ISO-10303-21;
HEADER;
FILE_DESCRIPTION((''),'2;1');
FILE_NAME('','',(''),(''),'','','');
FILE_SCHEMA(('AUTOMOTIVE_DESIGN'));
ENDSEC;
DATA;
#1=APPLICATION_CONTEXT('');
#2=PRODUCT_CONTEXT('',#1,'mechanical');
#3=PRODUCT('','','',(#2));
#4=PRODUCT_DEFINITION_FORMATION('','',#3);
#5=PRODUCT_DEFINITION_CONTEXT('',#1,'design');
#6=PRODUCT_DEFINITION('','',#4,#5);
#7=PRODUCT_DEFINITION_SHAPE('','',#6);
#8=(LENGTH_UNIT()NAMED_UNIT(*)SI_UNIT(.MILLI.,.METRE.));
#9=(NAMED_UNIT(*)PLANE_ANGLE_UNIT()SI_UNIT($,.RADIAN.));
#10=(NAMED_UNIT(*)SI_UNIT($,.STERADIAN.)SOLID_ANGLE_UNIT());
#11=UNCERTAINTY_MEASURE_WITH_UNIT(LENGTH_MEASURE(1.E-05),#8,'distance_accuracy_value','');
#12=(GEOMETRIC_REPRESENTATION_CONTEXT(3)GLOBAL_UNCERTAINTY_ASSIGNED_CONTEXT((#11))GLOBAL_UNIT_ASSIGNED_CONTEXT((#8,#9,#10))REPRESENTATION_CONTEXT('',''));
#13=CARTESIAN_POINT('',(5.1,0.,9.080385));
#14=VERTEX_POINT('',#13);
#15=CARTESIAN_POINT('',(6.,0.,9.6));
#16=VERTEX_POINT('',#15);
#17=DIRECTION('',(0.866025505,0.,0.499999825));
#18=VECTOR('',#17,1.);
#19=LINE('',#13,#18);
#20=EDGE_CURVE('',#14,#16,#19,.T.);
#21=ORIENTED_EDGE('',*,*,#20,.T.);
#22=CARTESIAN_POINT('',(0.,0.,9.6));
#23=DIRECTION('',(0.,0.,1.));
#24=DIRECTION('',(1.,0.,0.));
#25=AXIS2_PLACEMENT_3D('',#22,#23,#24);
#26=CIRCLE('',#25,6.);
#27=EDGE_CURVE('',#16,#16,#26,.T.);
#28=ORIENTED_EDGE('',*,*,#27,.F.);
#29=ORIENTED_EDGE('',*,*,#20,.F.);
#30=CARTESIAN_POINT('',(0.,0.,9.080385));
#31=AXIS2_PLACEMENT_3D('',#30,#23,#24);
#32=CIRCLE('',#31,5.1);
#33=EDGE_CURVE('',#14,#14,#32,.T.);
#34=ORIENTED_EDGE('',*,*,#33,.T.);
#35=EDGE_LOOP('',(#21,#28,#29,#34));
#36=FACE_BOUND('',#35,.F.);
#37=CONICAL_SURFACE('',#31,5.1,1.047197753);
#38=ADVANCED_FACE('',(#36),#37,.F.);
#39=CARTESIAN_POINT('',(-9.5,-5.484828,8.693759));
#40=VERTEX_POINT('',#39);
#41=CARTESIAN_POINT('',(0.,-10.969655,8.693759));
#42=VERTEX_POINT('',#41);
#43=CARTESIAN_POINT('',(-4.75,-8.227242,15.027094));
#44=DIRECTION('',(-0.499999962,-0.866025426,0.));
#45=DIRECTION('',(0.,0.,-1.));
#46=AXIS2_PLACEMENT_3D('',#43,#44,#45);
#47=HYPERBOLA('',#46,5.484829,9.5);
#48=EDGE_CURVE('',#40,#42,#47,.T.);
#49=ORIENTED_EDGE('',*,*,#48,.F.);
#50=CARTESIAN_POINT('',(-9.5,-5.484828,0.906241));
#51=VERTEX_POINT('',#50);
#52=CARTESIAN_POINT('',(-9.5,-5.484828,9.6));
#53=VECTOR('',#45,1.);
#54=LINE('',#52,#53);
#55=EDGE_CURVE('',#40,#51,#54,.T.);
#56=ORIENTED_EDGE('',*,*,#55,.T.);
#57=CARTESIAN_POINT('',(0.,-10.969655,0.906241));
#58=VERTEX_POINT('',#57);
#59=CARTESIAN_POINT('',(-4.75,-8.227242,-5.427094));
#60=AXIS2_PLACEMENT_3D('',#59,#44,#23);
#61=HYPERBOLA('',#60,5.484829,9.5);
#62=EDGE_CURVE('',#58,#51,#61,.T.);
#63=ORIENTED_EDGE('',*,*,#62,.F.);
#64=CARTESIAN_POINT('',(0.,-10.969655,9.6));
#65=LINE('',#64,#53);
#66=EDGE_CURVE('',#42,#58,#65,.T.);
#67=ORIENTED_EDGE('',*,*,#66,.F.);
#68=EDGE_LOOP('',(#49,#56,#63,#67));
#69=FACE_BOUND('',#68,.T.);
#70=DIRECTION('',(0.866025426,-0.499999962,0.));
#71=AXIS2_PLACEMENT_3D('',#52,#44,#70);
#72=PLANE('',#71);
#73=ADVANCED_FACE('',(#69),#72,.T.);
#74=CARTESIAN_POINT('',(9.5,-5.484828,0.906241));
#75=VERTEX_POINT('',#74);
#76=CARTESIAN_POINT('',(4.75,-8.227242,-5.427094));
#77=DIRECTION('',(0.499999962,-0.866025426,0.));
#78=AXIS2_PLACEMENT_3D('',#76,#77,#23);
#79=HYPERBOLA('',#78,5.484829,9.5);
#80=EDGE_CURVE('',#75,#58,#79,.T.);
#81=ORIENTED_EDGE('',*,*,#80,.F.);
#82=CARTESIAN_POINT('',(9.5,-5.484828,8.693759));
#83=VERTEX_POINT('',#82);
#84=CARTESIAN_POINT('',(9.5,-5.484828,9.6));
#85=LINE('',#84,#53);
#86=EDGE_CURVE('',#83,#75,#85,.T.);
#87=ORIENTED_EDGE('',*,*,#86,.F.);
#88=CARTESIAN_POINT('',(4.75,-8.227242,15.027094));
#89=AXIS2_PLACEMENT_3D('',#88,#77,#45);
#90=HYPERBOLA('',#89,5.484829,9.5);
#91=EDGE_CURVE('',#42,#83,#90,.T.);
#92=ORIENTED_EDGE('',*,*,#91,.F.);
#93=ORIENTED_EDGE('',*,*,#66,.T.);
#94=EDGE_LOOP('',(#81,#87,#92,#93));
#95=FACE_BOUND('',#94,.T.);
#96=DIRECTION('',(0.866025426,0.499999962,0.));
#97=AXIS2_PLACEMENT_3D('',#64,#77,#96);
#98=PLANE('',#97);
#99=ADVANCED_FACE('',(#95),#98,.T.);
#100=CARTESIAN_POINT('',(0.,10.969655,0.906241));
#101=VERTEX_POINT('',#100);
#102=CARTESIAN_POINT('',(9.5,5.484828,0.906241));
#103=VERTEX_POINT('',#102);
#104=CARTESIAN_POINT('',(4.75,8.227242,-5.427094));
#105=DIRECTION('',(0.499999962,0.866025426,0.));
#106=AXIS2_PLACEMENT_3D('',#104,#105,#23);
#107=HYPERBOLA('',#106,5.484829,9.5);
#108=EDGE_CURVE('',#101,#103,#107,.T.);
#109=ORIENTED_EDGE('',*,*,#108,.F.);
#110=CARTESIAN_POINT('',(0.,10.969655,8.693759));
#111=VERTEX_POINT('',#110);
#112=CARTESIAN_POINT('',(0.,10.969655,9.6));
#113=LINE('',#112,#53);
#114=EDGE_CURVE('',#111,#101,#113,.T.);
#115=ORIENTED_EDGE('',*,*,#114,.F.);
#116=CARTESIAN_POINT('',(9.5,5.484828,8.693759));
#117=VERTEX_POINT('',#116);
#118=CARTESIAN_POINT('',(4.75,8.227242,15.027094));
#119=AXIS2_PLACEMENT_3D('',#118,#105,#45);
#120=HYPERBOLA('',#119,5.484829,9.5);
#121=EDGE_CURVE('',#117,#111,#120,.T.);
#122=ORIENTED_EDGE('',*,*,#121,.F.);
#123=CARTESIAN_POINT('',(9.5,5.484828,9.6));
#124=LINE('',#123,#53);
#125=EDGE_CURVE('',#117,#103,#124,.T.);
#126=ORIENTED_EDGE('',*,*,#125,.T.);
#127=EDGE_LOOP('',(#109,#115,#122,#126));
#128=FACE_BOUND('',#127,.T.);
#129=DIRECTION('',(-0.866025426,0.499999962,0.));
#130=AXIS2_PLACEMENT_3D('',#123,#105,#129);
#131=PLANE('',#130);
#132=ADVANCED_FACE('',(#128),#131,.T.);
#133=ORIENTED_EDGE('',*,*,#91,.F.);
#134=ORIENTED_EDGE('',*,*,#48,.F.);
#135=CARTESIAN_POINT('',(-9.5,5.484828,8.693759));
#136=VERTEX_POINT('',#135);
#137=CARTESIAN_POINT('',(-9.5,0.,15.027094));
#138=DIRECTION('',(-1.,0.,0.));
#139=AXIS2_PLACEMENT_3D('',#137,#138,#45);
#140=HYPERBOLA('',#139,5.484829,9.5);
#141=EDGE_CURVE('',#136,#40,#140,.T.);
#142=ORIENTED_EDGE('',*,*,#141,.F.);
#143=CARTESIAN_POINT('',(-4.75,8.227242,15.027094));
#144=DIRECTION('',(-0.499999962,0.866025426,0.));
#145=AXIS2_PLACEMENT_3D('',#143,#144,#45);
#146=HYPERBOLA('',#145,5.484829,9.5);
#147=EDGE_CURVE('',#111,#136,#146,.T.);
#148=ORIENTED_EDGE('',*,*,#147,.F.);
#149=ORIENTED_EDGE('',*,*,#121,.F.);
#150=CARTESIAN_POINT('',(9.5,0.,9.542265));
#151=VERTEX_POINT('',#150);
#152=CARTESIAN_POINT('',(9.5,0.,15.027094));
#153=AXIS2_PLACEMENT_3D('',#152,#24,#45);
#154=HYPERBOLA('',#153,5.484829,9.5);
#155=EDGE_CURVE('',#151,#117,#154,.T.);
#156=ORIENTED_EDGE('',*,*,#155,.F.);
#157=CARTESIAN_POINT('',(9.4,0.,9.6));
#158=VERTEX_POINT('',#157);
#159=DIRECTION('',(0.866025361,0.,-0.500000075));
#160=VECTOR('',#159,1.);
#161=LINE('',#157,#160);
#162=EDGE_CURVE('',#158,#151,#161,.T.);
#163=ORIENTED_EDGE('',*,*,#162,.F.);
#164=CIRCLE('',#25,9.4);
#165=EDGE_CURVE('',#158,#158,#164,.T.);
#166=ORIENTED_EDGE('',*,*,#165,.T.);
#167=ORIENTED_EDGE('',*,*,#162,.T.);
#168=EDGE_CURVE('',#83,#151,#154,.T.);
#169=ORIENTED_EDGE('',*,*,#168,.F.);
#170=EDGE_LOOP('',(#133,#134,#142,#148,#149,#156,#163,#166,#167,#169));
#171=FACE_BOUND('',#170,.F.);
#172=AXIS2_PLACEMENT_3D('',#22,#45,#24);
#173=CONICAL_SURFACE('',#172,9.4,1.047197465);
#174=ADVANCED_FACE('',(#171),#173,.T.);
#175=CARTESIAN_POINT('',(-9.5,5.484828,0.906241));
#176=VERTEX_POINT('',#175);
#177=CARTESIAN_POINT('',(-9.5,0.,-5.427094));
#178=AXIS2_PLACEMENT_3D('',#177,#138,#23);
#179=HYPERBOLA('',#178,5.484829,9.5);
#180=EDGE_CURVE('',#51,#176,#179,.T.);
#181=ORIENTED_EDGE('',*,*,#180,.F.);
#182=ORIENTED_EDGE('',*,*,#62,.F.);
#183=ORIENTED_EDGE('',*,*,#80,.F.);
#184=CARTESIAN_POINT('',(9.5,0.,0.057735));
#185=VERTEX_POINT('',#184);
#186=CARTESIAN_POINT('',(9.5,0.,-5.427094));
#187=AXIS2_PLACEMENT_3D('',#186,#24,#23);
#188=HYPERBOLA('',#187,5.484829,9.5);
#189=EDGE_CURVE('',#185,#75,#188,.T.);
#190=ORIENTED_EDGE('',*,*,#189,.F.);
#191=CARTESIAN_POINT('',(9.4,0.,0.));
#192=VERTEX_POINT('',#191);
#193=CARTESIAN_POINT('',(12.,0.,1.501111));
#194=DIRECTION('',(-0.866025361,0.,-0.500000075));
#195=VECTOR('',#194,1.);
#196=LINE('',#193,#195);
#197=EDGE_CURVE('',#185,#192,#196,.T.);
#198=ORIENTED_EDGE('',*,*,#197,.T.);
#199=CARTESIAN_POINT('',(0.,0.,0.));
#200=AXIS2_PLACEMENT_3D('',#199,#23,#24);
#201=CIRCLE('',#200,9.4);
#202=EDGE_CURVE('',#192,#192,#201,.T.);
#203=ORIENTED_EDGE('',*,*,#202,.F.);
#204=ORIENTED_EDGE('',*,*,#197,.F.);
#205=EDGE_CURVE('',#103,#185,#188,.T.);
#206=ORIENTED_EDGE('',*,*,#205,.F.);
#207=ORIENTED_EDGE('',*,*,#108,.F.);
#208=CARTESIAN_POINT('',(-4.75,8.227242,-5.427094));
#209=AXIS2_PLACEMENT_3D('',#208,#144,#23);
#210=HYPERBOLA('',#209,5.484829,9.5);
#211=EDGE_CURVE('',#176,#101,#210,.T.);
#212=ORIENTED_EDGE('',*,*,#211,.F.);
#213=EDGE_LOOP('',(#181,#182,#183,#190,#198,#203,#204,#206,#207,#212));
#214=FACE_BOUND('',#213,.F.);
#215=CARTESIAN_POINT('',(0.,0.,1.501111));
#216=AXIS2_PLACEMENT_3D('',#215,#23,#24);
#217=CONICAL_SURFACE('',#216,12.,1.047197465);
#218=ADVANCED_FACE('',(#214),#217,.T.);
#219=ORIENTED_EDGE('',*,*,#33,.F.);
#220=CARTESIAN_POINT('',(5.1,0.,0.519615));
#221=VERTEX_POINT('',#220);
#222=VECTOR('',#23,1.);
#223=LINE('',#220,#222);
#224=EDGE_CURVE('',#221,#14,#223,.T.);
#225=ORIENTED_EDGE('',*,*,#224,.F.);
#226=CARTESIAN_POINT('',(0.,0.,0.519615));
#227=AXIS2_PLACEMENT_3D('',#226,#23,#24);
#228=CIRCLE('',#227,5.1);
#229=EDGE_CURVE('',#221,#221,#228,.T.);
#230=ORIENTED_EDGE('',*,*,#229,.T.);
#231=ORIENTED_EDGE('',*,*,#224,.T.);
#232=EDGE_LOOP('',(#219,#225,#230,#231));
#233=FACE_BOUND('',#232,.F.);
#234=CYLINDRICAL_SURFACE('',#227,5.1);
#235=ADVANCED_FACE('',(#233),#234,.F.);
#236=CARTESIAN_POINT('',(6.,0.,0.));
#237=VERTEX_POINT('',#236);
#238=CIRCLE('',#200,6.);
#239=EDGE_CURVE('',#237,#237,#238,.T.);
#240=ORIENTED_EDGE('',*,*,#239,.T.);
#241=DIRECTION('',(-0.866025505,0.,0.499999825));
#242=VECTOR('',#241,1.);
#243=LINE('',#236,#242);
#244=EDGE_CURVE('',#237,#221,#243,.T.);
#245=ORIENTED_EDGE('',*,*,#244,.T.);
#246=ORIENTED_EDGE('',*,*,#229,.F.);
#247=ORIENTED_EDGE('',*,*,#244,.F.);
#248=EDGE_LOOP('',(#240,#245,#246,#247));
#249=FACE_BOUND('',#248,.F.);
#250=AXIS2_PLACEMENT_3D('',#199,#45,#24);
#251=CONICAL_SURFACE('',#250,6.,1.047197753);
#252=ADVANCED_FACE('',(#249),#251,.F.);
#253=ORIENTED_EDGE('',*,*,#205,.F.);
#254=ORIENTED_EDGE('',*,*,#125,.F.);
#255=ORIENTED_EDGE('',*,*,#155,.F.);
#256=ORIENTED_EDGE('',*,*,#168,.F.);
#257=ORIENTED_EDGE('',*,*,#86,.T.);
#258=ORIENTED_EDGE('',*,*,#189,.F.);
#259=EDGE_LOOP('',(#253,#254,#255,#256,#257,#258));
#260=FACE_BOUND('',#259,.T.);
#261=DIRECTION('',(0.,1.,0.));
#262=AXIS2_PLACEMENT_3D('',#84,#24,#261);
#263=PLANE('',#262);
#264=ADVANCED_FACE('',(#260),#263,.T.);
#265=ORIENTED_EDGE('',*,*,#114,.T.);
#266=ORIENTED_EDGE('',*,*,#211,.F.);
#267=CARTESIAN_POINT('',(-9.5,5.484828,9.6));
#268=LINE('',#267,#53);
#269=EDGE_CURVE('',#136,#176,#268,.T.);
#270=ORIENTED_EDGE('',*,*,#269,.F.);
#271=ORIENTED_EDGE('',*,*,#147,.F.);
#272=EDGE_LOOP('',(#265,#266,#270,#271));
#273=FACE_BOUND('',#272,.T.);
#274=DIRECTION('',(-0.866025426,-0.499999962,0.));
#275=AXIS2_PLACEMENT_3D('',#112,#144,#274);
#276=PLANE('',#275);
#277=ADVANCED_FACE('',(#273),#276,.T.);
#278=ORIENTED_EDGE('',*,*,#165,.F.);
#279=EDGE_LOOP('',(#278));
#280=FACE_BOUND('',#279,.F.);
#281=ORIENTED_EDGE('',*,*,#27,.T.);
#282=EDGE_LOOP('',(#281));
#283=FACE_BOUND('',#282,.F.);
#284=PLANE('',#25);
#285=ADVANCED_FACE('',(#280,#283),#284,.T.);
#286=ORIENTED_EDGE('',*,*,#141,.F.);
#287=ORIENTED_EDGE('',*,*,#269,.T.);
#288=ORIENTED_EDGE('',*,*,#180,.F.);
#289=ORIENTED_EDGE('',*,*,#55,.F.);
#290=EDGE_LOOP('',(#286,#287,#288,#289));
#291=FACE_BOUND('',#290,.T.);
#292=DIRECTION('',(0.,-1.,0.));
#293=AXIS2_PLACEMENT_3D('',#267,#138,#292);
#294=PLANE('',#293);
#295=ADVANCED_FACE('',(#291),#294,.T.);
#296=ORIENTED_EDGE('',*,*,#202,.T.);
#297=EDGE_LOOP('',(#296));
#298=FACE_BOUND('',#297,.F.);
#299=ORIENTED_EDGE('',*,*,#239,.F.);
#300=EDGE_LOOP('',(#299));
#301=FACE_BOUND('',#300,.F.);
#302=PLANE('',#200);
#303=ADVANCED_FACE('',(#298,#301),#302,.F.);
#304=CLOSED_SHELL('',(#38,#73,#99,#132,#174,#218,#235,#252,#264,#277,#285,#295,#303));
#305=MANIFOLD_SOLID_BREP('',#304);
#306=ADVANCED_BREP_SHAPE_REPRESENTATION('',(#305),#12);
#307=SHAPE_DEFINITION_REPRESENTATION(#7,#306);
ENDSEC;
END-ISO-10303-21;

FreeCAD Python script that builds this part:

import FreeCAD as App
import Part
import Sketcher
Q = App.Units.Quantity

doc = App.newDocument("Part")
body = doc.addObject("PartDesign::Body", "Body")

sketch1 = body.newObject("Sketcher::SketchObject", "Sketch")
sketch1.AttachmentSupport = (doc.getObject("XZ_Plane"), [""])
sketch1.MapMode = "FlatFace"
sketch1.addGeometry([
    Part.LineSegment(App.Vector(5.1, 0.5, 0), App.Vector(6, 0, 0)),
    Part.LineSegment(App.Vector(6, 0, 0), App.Vector(9.4, 0, 0)),
    Part.LineSegment(App.Vector(9.4, 0, 0), App.Vector(12, 1.5, 0)),
    Part.LineSegment(App.Vector(12, 1.5, 0), App.Vector(12, 8.1, 0)),
    Part.LineSegment(App.Vector(12, 8.1, 0), App.Vector(9.4, 9.6, 0)),
    Part.LineSegment(App.Vector(9.4, 9.6, 0), App.Vector(6, 9.6, 0)),
    Part.LineSegment(App.Vector(6, 9.6, 0), App.Vector(5.1, 9.1, 0)),
    Part.LineSegment(App.Vector(5.1, 9.1, 0), App.Vector(5.1, 0.5, 0)),
], False)
sketch1.addConstraint([
    Sketcher.Constraint("Coincident", 0, 2, 1, 1),
    Sketcher.Constraint("Coincident", 1, 2, 2, 1),
    Sketcher.Constraint("Coincident", 2, 2, 3, 1),
    Sketcher.Constraint("Coincident", 3, 2, 4, 1),
    Sketcher.Constraint("Coincident", 4, 2, 5, 1),
    Sketcher.Constraint("Coincident", 5, 2, 6, 1),
    Sketcher.Constraint("Coincident", 6, 2, 7, 1),
    Sketcher.Constraint("Coincident", 7, 2, 0, 1),
    Sketcher.Constraint("Horizontal", 1),
    Sketcher.Constraint("Vertical", 3),
    Sketcher.Constraint("Horizontal", 5),
    Sketcher.Constraint("Vertical", 7),
    Sketcher.Constraint("PointOnObject", 0, 2, -1),
    Sketcher.Constraint("Parallel", 0, 4),
    Sketcher.Constraint("Parallel", 2, 6),
    Sketcher.Constraint("Vertical", 1, 2, 4, 2),
    Sketcher.Constraint("Vertical", 0, 2, 5, 2),
    Sketcher.Constraint("Equal", 2, 4),
    Sketcher.Constraint("Angle", 0, Q("-29.999988 deg")),
    Sketcher.Constraint("DistanceX", 1, 1, 1, 2, Q("3.4 mm")),
    Sketcher.Constraint("DistanceX", -1, 1, 0, 2, Q("6 mm")),
    Sketcher.Constraint("DistanceX", -1, 1, 2, 2, Q("12 mm")),
    Sketcher.Constraint("DistanceY", -1, 1, 4, 2, Q("9.6 mm")),
    Sketcher.Constraint("DistanceX", -1, 1, 6, 2, Q("5.1 mm")),
])
revolution = body.newObject("PartDesign::Revolution", "Revolution")
revolution.Profile = sketch1
revolution.ReferenceAxis = (sketch1, ["V_Axis"])
revolution.Angle = 360

sketch2 = body.newObject("Sketcher::SketchObject", "Sketch001")
sketch2.AttachmentSupport = (doc.getObject("XY_Plane"), [""])
sketch2.MapMode = "FlatFace"
sketch2.AttachmentOffset = App.Placement(App.Vector(0, 0, 9.6), App.Rotation())
sketch2.addGeometry([
    Part.Circle(App.Vector(0, 0, 0), App.Vector(0, 0, 1), 12),
    Part.LineSegment(App.Vector(10, 5, 0), App.Vector(10, -5, 0)),
    Part.LineSegment(App.Vector(10, -5, 0), App.Vector(0, -11, 0)),
    Part.LineSegment(App.Vector(0, -11, 0), App.Vector(-10, -5, 0)),
    Part.LineSegment(App.Vector(-10, -5, 0), App.Vector(-10, 5, 0)),
    Part.LineSegment(App.Vector(-10, 5, 0), App.Vector(0, 11, 0)),
    Part.LineSegment(App.Vector(0, 11, 0), App.Vector(10, 5, 0)),
], False)
sketch2.addConstraint([
    Sketcher.Constraint("Coincident", 1, 2, 2, 1),
    Sketcher.Constraint("Coincident", 2, 2, 3, 1),
    Sketcher.Constraint("Coincident", 3, 2, 4, 1),
    Sketcher.Constraint("Coincident", 4, 2, 5, 1),
    Sketcher.Constraint("Coincident", 5, 2, 6, 1),
    Sketcher.Constraint("Coincident", 6, 2, 1, 1),
    Sketcher.Constraint("Vertical", 1),
    Sketcher.Constraint("Vertical", 4),
    Sketcher.Constraint("Coincident", 0, 3, -1, 1),
    Sketcher.Constraint("Symmetric", 1, 2, 4, 2, -1, 1),
    Sketcher.Constraint("Symmetric", 2, 2, 5, 2, -1, 1),
    Sketcher.Constraint("PointOnObject", 2, 2, -2),
    Sketcher.Constraint("Parallel", 3, 6),
    Sketcher.Constraint("Horizontal", 1, 2, 3, 2),
    Sketcher.Constraint("Diameter", 0, Q("24 mm")),
    Sketcher.Constraint("Angle", 2, Q("-150.000003 deg")),
    Sketcher.Constraint("DistanceX", 3, 2, 1, 2, Q("19 mm")),
    Sketcher.Constraint("DistanceY", 1, 2, 1, 1, Q("10.969656 mm")),
])
pocket1 = body.newObject("PartDesign::Pocket", "Pocket")
pocket1.Profile = sketch2
pocket1.Length = 9.6

doc.recompute()
